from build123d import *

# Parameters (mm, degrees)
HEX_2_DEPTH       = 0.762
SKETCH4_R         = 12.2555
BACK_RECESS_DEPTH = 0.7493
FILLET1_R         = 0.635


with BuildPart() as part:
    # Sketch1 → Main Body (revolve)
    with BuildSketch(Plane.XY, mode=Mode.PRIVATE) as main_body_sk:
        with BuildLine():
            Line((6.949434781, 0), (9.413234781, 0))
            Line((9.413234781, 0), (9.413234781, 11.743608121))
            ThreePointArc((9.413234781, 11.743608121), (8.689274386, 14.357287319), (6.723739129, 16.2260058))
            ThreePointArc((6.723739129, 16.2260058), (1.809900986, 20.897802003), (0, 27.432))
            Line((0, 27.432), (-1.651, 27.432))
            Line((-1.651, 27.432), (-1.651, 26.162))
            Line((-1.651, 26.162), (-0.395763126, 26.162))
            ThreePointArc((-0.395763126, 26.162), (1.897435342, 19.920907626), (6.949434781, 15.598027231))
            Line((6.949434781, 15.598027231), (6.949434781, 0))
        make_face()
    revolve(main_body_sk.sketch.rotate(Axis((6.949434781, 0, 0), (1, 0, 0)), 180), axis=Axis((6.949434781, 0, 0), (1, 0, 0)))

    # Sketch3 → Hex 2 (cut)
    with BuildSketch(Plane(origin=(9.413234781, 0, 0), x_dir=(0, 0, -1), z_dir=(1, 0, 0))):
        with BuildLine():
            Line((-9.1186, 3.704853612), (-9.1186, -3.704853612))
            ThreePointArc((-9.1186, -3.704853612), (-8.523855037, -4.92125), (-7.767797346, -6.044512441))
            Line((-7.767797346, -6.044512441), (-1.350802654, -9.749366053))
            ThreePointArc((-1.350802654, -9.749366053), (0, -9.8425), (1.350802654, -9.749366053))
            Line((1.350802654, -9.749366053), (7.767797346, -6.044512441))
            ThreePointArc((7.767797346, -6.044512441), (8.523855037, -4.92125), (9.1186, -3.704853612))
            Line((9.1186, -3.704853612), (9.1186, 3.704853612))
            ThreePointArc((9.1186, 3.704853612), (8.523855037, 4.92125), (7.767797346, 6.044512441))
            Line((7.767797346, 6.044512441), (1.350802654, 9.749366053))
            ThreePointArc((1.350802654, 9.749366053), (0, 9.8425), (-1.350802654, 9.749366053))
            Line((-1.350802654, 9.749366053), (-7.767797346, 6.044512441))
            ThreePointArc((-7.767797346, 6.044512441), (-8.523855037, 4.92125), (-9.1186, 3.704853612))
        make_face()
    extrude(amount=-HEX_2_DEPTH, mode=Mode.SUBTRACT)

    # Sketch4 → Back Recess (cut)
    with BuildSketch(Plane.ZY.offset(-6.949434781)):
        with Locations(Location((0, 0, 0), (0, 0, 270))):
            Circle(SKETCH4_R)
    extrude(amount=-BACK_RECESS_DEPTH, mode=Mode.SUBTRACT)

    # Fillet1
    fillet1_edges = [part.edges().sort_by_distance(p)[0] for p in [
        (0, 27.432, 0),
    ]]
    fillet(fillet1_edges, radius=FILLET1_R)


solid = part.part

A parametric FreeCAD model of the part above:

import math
import FreeCAD as App
import Part
import Sketcher

V = App.Vector
Q = App.Units.Quantity


def edges_at(feature, points):
    """Names of the edges that pass closest to the given points."""
    edges = feature.Shape.Edges
    near = lambda p: min(range(len(edges)), key=lambda i: edges[i].distToShape(Part.Vertex(*p))[0])
    return sorted({f"Edge{near(p) + 1}" for p in points})

doc = App.newDocument("Part")
body = doc.addObject("PartDesign::Body", "Body")

# Sketch on XY plane
sketch1 = body.newObject("Sketcher::SketchObject", "Sketch")
sketch1.AttachmentSupport = (doc.getObject("XY_Plane"), [""])
sketch1.MapMode = "FlatFace"
sketch1.addGeometry([
    Part.LineSegment(V(6.9, 0, 0), V(9.4, 0, 0)),  # 0
    Part.LineSegment(V(9.4, 0, 0), V(9.4, 11.7, 0)),  # 1
    Part.ArcOfCircle(Part.Circle(V(4.3, 11.7, 0), V(0, 0, 1), 5.1), math.radians(0), math.radians(62)),  # 2
    Part.ArcOfCircle(Part.Circle(V(12.7, 27.4, 0), V(0, 0, 1), 12.7), math.radians(-180), math.radians(-118)),  # 3
    Part.LineSegment(V(0, 27.4, 0), V(-1.7, 27.4, 0)),  # 4
    Part.LineSegment(V(-1.7, 27.4, 0), V(-1.7, 26.2, 0)),  # 5
    Part.LineSegment(V(-1.7, 26.2, 0), V(-0.4, 26.2, 0)),  # 6
    Part.ArcOfCircle(Part.Circle(V(12.7, 27.4, 0), V(0, 0, 1), 13.2), math.radians(-174), math.radians(-116)),  # 7
    Part.LineSegment(V(6.9, 15.6, 0), V(6.9, 0, 0)),  # 8
], False)
sketch1.addConstraint([
    Sketcher.Constraint("Coincident", 0, 2, 1, 1),
    Sketcher.Constraint("Tangent", 1, 2, 2, 1),
    Sketcher.Constraint("Tangent", 2, 2, 3, 2),
    Sketcher.Constraint("Coincident", 3, 1, 4, 1),
    Sketcher.Constraint("Coincident", 4, 2, 5, 1),
    Sketcher.Constraint("Coincident", 5, 2, 6, 1),
    Sketcher.Constraint("Coincident", 6, 2, 7, 1),
    Sketcher.Constraint("Coincident", 7, 2, 8, 1),
    Sketcher.Constraint("Coincident", 8, 2, 0, 1),
    Sketcher.Constraint("Horizontal", 0),
    Sketcher.Constraint("Vertical", 1),
    Sketcher.Constraint("Horizontal", 4),
    Sketcher.Constraint("Vertical", 5),
    Sketcher.Constraint("Horizontal", 6),
    Sketcher.Constraint("Vertical", 8),
    Sketcher.Constraint("Coincident", 7, 3, 3, 3),
    Sketcher.Constraint("PointOnObject", 0, 2, -1),
    Sketcher.Constraint("PointOnObject", 3, 1, -2),
    Sketcher.Constraint("Horizontal", 7, 3, 3, 1),
    Sketcher.Constraint("Radius", 2, Q("0.2 in")),
    Sketcher.Constraint("Radius", 3, Q("0.5 in")),
    Sketcher.Constraint("Radius", 7, Q("0.518 in")),
    Sketcher.Constraint("DistanceY", 5, 2, 5, 1, Q("0.05 in")),
    Sketcher.Constraint("DistanceX", 0, 1, 0, 2, Q("0.097 in")),
    Sketcher.Constraint("DistanceX", 4, 2, 4, 1, Q("0.065 in")),
    Sketcher.Constraint("DistanceY", -1, 1, 3, 3, Q("1.08 in")),
    Sketcher.Constraint("DistanceY", 1, 1, 1, 2, 11.743608),
])
revolution = body.newObject("PartDesign::Revolution", "Revolution")
revolution.Profile = sketch1
revolution.ReferenceAxis = (sketch1, ["H_Axis"])
revolution.Angle = 360

# Sketch on YZ plane
sketch2 = body.newObject("Sketcher::SketchObject", "Sketch001")
sketch2.AttachmentSupport = (doc.getObject("YZ_Plane"), [""])
sketch2.MapMode = "FlatFace"
sketch2.AttachmentOffset = App.Placement(V(0, 0, 9.413235), App.Rotation())
sketch2.addGeometry([
    Part.LineSegment(V(3.7, 9.1, 0), V(-3.7, 9.1, 0)),  # 0
    Part.ArcOfCircle(Part.Circle(V(0, 0, 0), V(0, 0, 1), 9.8), math.radians(112.11), math.radians(127.89)),  # 1
    Part.LineSegment(V(-6, 7.8, 0), V(-9.7, 1.4, 0)),  # 2
    Part.ArcOfCircle(Part.Circle(V(0, 0, 0), V(0, 0, 1), 9.8), math.radians(172.11), math.radians(187.89)),  # 3
    Part.LineSegment(V(-9.7, -1.4, 0), V(-6, -7.8, 0)),  # 4
    Part.ArcOfCircle(Part.Circle(V(0, 0, 0), V(0, 0, 1), 9.8), math.radians(-127.89), math.radians(-112.11)),  # 5
    Part.LineSegment(V(-3.7, -9.1, 0), V(3.7, -9.1, 0)),  # 6
    Part.ArcOfCircle(Part.Circle(V(0, 0, 0), V(0, 0, 1), 9.8), math.radians(-67.89), math.radians(-52.11)),  # 7
    Part.LineSegment(V(6, -7.8, 0), V(9.7, -1.4, 0)),  # 8
    Part.ArcOfCircle(Part.Circle(V(0, 0, 0), V(0, 0, 1), 9.8), math.radians(-7.89), math.radians(7.89)),  # 9
    Part.LineSegment(V(9.7, 1.4, 0), V(6, 7.8, 0)),  # 10
    Part.ArcOfCircle(Part.Circle(V(0, 0, 0), V(0, 0, 1), 9.8), math.radians(52.11), math.radians(67.89)),  # 11
], False)
sketch2.addConstraint([
    Sketcher.Constraint("Coincident", 0, 2, 1, 1),
    Sketcher.Constraint("Coincident", 1, 2, 2, 1),
    Sketcher.Constraint("Coincident", 2, 2, 3, 1),
    Sketcher.Constraint("Coincident", 3, 2, 4, 1),
    Sketcher.Constraint("Coincident", 4, 2, 5, 1),
    Sketcher.Constraint("Coincident", 5, 2, 6, 1),
    Sketcher.Constraint("Coincident", 6, 2, 7, 1),
    Sketcher.Constraint("Coincident", 7, 2, 8, 1),
    Sketcher.Constraint("Coincident", 8, 2, 9, 1),
    Sketcher.Constraint("Coincident", 9, 2, 10, 1),
    Sketcher.Constraint("Coincident", 10, 2, 11, 1),
    Sketcher.Constraint("Coincident", 11, 2, 0, 1),
    Sketcher.Constraint("Horizontal", 0),
    Sketcher.Constraint("Horizontal", 6),
    Sketcher.Constraint("Coincident", 1, 3, -1, 1),
    Sketcher.Constraint("Coincident", 3, 3, -1, 1),
    Sketcher.Constraint("Coincident", 5, 3, -1, 1),
    Sketcher.Constraint("Coincident", 7, 3, -1, 1),
    Sketcher.Constraint("Coincident", 9, 3, -1, 1),
    Sketcher.Constraint("Coincident", 11, 3, -1, 1),
    Sketcher.Constraint("Equal", 1, 3),
    Sketcher.Constraint("Equal", 3, 5),
    Sketcher.Constraint("Equal", 5, 7),
    Sketcher.Constraint("Equal", 7, 9),
    Sketcher.Constraint("Equal", 9, 11),
    Sketcher.Constraint("Parallel", 2, 8),
    Sketcher.Constraint("Parallel", 4, 10),
    Sketcher.Constraint("Horizontal", 4, 2, 7, 2),
    Sketcher.Constraint("Horizontal", 3, 2, 8, 2),
    Sketcher.Constraint("Horizontal", 2, 2, 9, 2),
    Sketcher.Constraint("Vertical", 2, 2, 3, 2),
    Sketcher.Constraint("Vertical", 0, 2, 5, 2),
    Sketcher.Constraint("Angle", 2, Q("-120 deg")),
    Sketcher.Constraint("Radius", 1, Q("0.3875 in")),
    Sketcher.Constraint("DistanceY", -1, 1, 0, 2, Q("0.359 in")),
    Sketcher.Constraint("DistanceY", 3, 2, 1, 2, Q("0.359 in")),
])
pocket1 = body.newObject("PartDesign::Pocket", "Pocket")
pocket1.Profile = sketch2
pocket1.Length = Q("0.03 in")

# Sketch on YZ plane
sketch3 = body.newObject("Sketcher::SketchObject", "Sketch002")
sketch3.AttachmentSupport = (doc.getObject("YZ_Plane"), [""])
sketch3.MapMode = "FlatFace"
sketch3.AttachmentOffset = App.Placement(V(0, 0, 6.949435), App.Rotation())
sketch3.addGeometry(Part.Circle(V(0, 0, 0), V(0, 0, 1), 12), False)
sketch3.addConstraint([
    Sketcher.Constraint("Coincident", 0, 3, -1, 1),
    Sketcher.Constraint("Diameter", 0, Q("0.965 in")),
])
pocket2 = body.newObject("PartDesign::Pocket", "Pocket001")
pocket2.Profile = sketch3
pocket2.Length = Q("0.0295 in")
pocket2.Reversed = True
doc.recompute()

fillet = body.newObject("PartDesign::Fillet", "Fillet")
fillet.Base = (pocket2, edges_at(pocket2, [(0, 27.432, 0)]))
fillet.Radius = Q("0.025 in")

doc.recompute()
